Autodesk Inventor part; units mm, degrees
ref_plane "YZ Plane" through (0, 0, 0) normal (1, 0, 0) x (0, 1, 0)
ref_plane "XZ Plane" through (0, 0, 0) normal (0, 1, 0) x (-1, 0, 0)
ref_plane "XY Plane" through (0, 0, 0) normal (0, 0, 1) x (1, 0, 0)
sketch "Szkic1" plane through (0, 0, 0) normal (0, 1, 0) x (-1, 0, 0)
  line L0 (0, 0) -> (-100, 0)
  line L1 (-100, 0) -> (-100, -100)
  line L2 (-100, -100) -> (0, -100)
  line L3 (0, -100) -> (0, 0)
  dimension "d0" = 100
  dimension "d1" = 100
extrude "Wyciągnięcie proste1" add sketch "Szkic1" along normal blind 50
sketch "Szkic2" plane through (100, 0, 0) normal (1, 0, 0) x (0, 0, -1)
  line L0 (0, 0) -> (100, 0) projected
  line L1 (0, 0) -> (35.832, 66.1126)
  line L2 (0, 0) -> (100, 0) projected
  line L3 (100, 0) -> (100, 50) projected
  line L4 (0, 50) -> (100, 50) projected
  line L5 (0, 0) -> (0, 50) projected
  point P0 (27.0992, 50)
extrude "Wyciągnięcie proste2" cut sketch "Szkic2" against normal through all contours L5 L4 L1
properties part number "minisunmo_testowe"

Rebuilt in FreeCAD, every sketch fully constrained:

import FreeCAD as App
import Part
import Sketcher

V = App.Vector

doc = App.newDocument("Part")
body = doc.addObject("PartDesign::Body", "Body")

sketch1 = doc.addObject("Sketcher::SketchObject", "Sketch")
body.addObject(sketch1)
sketch1.AttachmentSupport = (doc.XZ_Plane, [""])
sketch1.MapMode = "FlatFace"
sketch1.addGeometry(Part.LineSegment(V(0, -100, 0), V(0, 0, 0)), False)
sketch1.addGeometry(Part.LineSegment(V(0, 0, 0), V(100, 0, 0)), False)
sketch1.addGeometry(Part.LineSegment(V(100, 0, 0), V(100, -100, 0)), False)
sketch1.addGeometry(Part.LineSegment(V(100, -100, 0), V(0, -100, 0)), False)
sketch1.addConstraint(Sketcher.Constraint("Coincident", 0, 2, 1, 1))
sketch1.addConstraint(Sketcher.Constraint("Coincident", 1, 2, 2, 1))
sketch1.addConstraint(Sketcher.Constraint("Coincident", 2, 2, 3, 1))
sketch1.addConstraint(Sketcher.Constraint("Coincident", 3, 2, 0, 1))
sketch1.addConstraint(Sketcher.Constraint("Vertical", 0))
sketch1.addConstraint(Sketcher.Constraint("Horizontal", 1))
sketch1.addConstraint(Sketcher.Constraint("Vertical", 2))
sketch1.addConstraint(Sketcher.Constraint("Horizontal", 3))
sketch1.addConstraint(Sketcher.Constraint("Coincident", 0, 2, -1, 1))
sketch1.addConstraint(Sketcher.Constraint("Equal", 3, 0))
sketch1.addConstraint(Sketcher.Constraint("DistanceX", 1, 1, 1, 2, 100.0))
pad1 = doc.addObject("PartDesign::Pad", "Pad")
body.addObject(pad1)
pad1.Profile = sketch1
pad1.Length = 50
pad1.Reversed = True

sketch2 = doc.addObject("Sketcher::SketchObject", "Sketch001")
body.addObject(sketch2)
sketch2.AttachmentSupport = (doc.YZ_Plane, [""])
sketch2.MapMode = "FlatFace"
sketch2.AttachmentOffset = App.Placement(V(0, 0, 100), App.Rotation())
sketch2.addGeometry(Part.LineSegment(V(50, 0, 0), V(0, 0, 0)), False)
sketch2.addGeometry(Part.LineSegment(V(0, 0, 0), V(50, -27.099222, 0)), False)
sketch2.addGeometry(Part.LineSegment(V(50, -27.099222, 0), V(50, 0, 0)), False)
sketch2.addConstraint(Sketcher.Constraint("Coincident", 0, 2, 1, 1))
sketch2.addConstraint(Sketcher.Constraint("Coincident", 1, 2, 2, 1))
sketch2.addConstraint(Sketcher.Constraint("Coincident", 2, 2, 0, 1))
sketch2.addConstraint(Sketcher.Constraint("Horizontal", 0))
sketch2.addConstraint(Sketcher.Constraint("Vertical", 2))
sketch2.addConstraint(Sketcher.Constraint("Coincident", 0, 2, -1, 1))
sketch2.addConstraint(Sketcher.Constraint("DistanceX", 0, 2, 0, 1, 50.0))
sketch2.addConstraint(Sketcher.Constraint("DistanceY", 2, 1, 2, 2, 27.0992))
pocket1 = doc.addObject("PartDesign::Pocket", "Pocket")
body.addObject(pocket1)
pocket1.Profile = sketch2
pocket1.Type = "ThroughAll"

doc.recompute()
